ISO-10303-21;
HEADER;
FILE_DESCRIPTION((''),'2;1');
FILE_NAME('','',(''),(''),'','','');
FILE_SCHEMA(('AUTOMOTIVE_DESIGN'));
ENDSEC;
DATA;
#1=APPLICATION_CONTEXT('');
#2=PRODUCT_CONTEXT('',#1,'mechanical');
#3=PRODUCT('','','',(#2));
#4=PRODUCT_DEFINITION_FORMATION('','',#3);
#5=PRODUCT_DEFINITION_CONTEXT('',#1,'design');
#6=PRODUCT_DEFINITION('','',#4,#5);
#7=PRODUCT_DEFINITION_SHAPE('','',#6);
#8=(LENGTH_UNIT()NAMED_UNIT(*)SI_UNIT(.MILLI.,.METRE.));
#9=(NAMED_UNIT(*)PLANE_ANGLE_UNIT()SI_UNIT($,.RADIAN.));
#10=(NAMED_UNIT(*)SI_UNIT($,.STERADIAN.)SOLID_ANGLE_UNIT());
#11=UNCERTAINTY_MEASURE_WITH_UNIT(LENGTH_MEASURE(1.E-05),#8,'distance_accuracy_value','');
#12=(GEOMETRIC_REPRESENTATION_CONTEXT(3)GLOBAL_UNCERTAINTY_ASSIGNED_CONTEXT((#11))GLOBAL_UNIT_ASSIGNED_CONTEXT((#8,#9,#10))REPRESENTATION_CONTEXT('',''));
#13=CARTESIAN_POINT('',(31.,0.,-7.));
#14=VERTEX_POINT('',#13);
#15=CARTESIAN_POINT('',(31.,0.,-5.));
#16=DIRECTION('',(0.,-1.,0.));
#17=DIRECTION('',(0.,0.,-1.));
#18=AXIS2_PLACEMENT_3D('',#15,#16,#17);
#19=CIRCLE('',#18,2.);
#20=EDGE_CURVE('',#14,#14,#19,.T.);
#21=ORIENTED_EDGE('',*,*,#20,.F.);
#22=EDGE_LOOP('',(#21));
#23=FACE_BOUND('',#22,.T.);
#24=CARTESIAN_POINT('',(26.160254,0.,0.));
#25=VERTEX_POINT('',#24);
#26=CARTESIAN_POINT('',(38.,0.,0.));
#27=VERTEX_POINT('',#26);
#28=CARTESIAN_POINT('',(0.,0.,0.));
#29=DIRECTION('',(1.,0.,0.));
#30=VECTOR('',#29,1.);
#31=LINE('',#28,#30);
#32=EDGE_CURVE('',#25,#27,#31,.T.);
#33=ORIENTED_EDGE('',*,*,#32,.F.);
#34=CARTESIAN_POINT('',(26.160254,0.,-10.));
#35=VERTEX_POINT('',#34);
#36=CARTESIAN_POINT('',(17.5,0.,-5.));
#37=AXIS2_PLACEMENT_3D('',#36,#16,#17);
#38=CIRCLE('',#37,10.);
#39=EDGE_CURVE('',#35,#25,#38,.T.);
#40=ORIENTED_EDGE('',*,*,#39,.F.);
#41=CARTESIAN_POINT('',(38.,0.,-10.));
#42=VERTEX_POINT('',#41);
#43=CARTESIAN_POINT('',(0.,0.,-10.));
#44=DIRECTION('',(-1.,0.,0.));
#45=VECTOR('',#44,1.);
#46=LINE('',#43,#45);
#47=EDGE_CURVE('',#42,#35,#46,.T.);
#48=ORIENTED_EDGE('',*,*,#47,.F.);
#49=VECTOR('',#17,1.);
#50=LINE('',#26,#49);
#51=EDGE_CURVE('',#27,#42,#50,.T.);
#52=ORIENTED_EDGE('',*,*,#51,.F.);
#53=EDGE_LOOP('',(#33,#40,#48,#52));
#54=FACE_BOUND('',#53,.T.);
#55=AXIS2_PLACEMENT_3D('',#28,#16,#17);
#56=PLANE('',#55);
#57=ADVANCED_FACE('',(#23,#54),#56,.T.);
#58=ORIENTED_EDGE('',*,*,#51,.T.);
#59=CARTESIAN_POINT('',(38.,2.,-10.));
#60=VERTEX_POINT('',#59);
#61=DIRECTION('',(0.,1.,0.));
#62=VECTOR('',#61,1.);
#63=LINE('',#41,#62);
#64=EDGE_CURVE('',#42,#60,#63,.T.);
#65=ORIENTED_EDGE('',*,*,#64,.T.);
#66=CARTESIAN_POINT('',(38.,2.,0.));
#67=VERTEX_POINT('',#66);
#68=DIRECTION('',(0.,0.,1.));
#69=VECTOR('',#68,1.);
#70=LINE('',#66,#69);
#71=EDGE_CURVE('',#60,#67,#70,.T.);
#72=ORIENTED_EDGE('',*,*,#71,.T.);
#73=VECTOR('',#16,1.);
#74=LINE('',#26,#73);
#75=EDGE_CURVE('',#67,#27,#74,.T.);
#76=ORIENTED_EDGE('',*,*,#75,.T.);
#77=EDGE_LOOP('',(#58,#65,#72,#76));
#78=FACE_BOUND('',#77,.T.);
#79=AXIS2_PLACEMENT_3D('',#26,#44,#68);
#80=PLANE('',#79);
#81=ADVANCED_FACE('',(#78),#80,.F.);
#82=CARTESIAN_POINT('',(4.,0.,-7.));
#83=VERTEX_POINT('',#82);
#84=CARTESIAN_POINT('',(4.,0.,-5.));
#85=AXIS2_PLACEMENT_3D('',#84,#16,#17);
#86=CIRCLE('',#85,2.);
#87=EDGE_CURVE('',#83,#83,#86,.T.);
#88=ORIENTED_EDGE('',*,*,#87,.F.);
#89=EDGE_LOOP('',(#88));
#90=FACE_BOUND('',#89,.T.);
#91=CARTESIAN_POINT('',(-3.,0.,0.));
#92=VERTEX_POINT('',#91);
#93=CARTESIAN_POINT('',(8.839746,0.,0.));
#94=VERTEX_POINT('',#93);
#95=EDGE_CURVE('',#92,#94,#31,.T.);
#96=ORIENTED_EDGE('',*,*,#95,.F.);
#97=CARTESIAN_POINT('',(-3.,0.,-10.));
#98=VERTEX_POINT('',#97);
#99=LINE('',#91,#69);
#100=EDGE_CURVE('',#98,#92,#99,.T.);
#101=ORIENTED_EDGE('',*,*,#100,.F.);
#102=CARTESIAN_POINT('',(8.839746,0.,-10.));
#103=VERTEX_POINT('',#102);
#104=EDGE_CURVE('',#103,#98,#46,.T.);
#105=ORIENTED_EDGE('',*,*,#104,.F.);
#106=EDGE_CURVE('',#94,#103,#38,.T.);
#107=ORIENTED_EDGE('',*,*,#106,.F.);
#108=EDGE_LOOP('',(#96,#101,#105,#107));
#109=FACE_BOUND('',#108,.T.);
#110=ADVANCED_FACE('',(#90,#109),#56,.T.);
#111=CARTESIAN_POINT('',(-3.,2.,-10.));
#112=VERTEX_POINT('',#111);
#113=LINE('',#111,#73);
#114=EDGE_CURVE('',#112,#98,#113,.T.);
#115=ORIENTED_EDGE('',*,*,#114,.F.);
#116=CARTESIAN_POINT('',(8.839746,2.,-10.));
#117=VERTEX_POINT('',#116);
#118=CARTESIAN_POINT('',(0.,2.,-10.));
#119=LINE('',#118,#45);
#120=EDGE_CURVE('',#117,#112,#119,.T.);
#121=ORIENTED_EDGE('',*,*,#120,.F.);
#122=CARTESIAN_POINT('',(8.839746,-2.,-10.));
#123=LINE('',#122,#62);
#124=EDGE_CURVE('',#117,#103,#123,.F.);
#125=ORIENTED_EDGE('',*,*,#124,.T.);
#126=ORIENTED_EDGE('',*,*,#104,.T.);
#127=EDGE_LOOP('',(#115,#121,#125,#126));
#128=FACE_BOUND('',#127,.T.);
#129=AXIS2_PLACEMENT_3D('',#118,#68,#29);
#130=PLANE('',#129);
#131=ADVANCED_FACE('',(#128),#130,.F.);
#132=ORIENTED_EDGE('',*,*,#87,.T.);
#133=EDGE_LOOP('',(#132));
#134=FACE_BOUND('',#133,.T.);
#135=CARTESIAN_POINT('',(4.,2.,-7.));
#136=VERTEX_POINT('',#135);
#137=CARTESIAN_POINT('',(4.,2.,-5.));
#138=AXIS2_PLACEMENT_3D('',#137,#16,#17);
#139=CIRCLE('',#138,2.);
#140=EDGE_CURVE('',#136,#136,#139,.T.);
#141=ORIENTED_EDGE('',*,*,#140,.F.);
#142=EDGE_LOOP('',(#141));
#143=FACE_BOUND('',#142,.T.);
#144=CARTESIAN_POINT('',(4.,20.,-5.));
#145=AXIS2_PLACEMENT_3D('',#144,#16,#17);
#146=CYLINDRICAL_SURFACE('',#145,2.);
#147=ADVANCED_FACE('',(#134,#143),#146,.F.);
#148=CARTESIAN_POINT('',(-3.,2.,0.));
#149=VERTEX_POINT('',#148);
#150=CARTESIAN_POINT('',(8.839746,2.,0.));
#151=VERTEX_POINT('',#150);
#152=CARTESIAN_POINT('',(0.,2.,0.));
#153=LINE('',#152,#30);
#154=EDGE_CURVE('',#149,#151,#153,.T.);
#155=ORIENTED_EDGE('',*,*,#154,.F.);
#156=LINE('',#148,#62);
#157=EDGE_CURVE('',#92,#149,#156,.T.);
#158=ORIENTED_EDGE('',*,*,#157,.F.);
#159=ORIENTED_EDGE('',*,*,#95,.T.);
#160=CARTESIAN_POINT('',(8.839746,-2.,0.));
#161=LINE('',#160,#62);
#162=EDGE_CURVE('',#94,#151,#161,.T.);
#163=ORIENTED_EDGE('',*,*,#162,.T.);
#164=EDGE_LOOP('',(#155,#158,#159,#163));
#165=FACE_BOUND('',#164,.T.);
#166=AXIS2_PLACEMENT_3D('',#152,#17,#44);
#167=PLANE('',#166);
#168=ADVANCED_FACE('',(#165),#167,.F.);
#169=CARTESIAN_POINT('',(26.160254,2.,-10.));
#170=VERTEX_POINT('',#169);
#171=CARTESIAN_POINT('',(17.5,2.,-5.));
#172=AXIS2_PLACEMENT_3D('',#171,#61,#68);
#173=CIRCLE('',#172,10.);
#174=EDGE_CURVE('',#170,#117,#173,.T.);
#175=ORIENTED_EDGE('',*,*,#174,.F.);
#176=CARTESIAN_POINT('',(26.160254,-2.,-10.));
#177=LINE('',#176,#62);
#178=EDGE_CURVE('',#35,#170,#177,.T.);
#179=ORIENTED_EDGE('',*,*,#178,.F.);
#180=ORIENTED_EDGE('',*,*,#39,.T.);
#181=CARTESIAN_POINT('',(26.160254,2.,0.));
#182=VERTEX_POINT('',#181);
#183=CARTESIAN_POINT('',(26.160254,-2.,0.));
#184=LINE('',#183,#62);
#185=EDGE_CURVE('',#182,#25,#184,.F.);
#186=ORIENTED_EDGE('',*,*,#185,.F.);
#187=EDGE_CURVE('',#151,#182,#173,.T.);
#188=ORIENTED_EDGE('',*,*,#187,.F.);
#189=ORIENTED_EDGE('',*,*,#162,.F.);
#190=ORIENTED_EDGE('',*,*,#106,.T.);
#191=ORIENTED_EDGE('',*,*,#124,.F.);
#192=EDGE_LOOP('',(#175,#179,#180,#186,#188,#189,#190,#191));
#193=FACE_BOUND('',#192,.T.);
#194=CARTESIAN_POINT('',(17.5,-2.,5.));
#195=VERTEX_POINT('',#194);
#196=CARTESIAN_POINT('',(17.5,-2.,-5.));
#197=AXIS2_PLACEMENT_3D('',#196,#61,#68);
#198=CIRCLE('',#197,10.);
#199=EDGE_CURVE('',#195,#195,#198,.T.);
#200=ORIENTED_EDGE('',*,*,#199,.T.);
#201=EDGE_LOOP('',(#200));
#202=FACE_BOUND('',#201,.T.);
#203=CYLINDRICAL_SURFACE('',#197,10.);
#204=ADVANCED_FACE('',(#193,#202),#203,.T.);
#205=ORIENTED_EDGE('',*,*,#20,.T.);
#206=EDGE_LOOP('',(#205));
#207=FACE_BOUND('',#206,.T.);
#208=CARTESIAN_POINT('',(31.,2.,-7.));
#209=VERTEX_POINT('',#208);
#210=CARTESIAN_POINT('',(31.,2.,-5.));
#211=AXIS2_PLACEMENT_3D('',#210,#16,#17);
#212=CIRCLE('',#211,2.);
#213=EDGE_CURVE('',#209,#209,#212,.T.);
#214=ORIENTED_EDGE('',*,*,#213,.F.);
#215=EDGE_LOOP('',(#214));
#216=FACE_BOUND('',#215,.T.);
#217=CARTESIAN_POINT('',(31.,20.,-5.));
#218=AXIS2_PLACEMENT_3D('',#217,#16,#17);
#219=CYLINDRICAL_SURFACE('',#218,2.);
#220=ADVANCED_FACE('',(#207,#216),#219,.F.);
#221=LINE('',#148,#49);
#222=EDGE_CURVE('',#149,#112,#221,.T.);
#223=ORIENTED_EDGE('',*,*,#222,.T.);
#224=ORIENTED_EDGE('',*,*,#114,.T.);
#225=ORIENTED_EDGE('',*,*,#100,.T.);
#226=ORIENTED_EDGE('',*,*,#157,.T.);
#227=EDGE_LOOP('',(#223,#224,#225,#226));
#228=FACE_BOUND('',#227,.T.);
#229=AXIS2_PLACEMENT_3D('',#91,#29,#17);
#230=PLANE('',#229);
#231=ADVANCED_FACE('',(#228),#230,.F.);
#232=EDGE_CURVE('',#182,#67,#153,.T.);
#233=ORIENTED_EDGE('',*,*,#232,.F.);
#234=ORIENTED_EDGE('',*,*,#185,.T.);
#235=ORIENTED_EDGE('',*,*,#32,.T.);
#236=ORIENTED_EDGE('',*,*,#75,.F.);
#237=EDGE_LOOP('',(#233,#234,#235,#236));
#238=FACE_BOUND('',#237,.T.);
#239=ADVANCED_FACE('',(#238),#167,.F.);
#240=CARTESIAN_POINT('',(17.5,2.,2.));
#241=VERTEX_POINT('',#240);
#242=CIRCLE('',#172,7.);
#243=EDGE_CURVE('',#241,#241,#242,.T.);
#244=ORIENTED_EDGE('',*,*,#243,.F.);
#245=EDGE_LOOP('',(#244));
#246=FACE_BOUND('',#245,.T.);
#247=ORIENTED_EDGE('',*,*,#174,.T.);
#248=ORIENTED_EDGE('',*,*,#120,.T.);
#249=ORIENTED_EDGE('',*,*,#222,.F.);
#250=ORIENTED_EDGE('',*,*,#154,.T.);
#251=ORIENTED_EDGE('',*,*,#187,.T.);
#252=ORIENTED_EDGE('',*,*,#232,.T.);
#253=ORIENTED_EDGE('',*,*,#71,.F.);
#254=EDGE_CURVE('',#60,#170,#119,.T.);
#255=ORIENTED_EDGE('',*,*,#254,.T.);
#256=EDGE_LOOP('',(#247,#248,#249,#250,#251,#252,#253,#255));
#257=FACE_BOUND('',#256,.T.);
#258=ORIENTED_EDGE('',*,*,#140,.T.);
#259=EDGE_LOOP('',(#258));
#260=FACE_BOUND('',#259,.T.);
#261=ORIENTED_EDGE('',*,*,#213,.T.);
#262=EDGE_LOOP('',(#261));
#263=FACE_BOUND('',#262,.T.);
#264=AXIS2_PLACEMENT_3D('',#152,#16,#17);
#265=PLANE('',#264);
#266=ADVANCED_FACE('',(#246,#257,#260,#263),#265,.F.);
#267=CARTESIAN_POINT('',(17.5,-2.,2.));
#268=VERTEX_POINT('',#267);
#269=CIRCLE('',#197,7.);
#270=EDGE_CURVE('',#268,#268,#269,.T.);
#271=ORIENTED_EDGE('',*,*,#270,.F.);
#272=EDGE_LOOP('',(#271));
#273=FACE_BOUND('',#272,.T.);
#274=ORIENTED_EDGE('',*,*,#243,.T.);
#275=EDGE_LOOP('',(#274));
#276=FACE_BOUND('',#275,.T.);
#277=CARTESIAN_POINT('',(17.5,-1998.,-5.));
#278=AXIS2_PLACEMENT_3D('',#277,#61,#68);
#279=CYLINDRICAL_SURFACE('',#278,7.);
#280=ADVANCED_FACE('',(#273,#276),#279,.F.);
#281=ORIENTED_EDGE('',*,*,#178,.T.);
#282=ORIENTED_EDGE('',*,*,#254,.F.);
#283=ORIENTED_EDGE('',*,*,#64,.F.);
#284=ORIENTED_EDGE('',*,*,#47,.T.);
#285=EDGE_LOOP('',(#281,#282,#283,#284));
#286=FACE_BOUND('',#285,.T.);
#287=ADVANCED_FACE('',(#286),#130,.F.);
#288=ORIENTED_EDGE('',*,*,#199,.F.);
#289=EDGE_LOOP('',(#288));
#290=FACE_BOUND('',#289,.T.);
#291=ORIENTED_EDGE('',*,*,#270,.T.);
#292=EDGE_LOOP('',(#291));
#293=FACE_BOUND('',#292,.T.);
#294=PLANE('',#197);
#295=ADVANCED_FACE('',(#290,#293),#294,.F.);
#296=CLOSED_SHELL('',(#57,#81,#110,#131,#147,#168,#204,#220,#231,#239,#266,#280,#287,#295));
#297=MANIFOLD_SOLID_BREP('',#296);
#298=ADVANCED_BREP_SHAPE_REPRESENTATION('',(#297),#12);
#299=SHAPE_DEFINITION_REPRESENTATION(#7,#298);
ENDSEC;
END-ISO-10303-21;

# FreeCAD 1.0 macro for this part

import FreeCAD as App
import Part
import Sketcher
from FreeCAD import Vector
Q = App.Units.Quantity

doc = App.newDocument("Part")
body = doc.addObject("PartDesign::Body", "Body")

sketch1 = body.newObject("Sketcher::SketchObject", "Sketch")
sketch1.AttachmentSupport = (doc.getObject("XZ_Plane"), [""])
sketch1.MapMode = "FlatFace"
sketch1.addGeometry([
    Part.LineSegment(Vector(0, -10, 0), Vector(0, 0, 0)),
    Part.LineSegment(Vector(0, 0, 0), Vector(35, 0, 0)),
    Part.LineSegment(Vector(35, 0, 0), Vector(35, -10, 0)),
    Part.LineSegment(Vector(35, -10, 0), Vector(0, -10, 0)),
], False)
sketch1.addConstraint([
    Sketcher.Constraint("Coincident", 0, 2, 1, 1),
    Sketcher.Constraint("Coincident", 1, 2, 2, 1),
    Sketcher.Constraint("Coincident", 2, 2, 3, 1),
    Sketcher.Constraint("Coincident", 3, 2, 0, 1),
    Sketcher.Constraint("Vertical", 0),
    Sketcher.Constraint("Horizontal", 1),
    Sketcher.Constraint("Vertical", 2),
    Sketcher.Constraint("Horizontal", 3),
    Sketcher.Constraint("Coincident", 0, 2, -1, 1),
    Sketcher.Constraint("DistanceX", 1, 1, 1, 2, Q("35 mm")),
    Sketcher.Constraint("DistanceY", 0, 1, 0, 2, Q("10 mm")),
])
pad1 = body.newObject("PartDesign::Pad", "Pad")
pad1.Profile = sketch1
pad1.Length = 2
pad1.Reversed = True

sketch2 = body.newObject("Sketcher::SketchObject", "Sketch001")
sketch2.AttachmentSupport = (doc.getObject("XZ_Plane"), [""])
sketch2.MapMode = "FlatFace"
sketch2.AttachmentOffset = App.Placement(Vector(0, 0, -2), App.Rotation())
sketch2.addGeometry(Part.Circle(Vector(17.5, -5, 0), Vector(0, 0, 1), 10), False)
sketch2.addConstraint([
    Sketcher.Constraint("Diameter", 0, Q("20 mm")),
    Sketcher.Constraint("DistanceY", 0, 3, -1, 1, Q("5 mm")),
    Sketcher.Constraint("DistanceX", -1, 1, 0, 3, Q("17.5 mm")),
])
pad2 = body.newObject("PartDesign::Pad", "Pad001")
pad2.Profile = sketch2
pad2.Length = 4

sketch3 = body.newObject("Sketcher::SketchObject", "Sketch002")
sketch3.AttachmentSupport = (doc.getObject("XZ_Plane"), [""])
sketch3.MapMode = "FlatFace"
sketch3.AttachmentOffset = App.Placement(Vector(0, 0, -2), App.Rotation())
sketch3.addGeometry(Part.Circle(Vector(17.5, -5, 0), Vector(0, 0, 1), 7), False)
sketch3.addConstraint([
    Sketcher.Constraint("Diameter", 0, Q("14 mm")),
    Sketcher.Constraint("DistanceY", 0, 3, -1, 1, Q("5 mm")),
    Sketcher.Constraint("DistanceX", -1, 1, 0, 3, Q("17.5 mm")),
])
pocket1 = body.newObject("PartDesign::Pocket", "Pocket")
pocket1.Profile = sketch3
pocket1.Length = 2000
pocket1.Reversed = True

sketch4 = body.newObject("Sketcher::SketchObject", "Sketch003")
sketch4.AttachmentSupport = (doc.getObject("XZ_Plane"), [""])
sketch4.MapMode = "FlatFace"
sketch4.addGeometry([
    Part.Circle(Vector(4, -5, 0), Vector(0, 0, 1), 2),
    Part.Circle(Vector(31, -5, 0), Vector(0, 0, 1), 2),
], False)
sketch4.addConstraint([
    Sketcher.Constraint("Equal", 0, 1),
    Sketcher.Constraint("Horizontal", 0, 3, 1, 3),
    Sketcher.Constraint("Diameter", 0, Q("4 mm")),
    Sketcher.Constraint("DistanceX", -1, 1, 0, 3, Q("4 mm")),
    Sketcher.Constraint("DistanceY", 0, 3, -1, 1, Q("5 mm")),
    Sketcher.Constraint("DistanceX", -1, 1, 1, 3, Q("31 mm")),
])
pocket2 = body.newObject("PartDesign::Pocket", "Pocket001")
pocket2.Profile = sketch4
pocket2.Length = 20

sketch5 = body.newObject("Sketcher::SketchObject", "Sketch004")
sketch5.AttachmentSupport = (doc.getObject("YZ_Plane"), [""])
sketch5.MapMode = "FlatFace"
sketch5.addGeometry([
    Part.LineSegment(Vector(2, -10, 0), Vector(0, -10, 0)),
    Part.LineSegment(Vector(0, -10, 0), Vector(0, 0, 0)),
    Part.LineSegment(Vector(0, 0, 0), Vector(2, 0, 0)),
    Part.LineSegment(Vector(2, 0, 0), Vector(2, -10, 0)),
], False)
sketch5.addConstraint([
    Sketcher.Constraint("Coincident", 0, 2, 1, 1),
    Sketcher.Constraint("Coincident", 1, 2, 2, 1),
    Sketcher.Constraint("Coincident", 2, 2, 3, 1),
    Sketcher.Constraint("Coincident", 3, 2, 0, 1),
    Sketcher.Constraint("Horizontal", 0),
    Sketcher.Constraint("Vertical", 1),
    Sketcher.Constraint("Horizontal", 2),
    Sketcher.Constraint("Vertical", 3),
    Sketcher.Constraint("Coincident", 1, 2, -1, 1),
    Sketcher.Constraint("DistanceX", 0, 2, 0, 1, Q("2 mm")),
    Sketcher.Constraint("DistanceY", 1, 1, 1, 2, Q("10 mm")),
])
pad3 = body.newObject("PartDesign::Pad", "Pad002")
pad3.Profile = sketch5
pad3.Length = 3
pad3.Reversed = True

sketch6 = body.newObject("Sketcher::SketchObject", "Sketch005")
sketch6.AttachmentSupport = (doc.getObject("YZ_Plane"), [""])
sketch6.MapMode = "FlatFace"
sketch6.AttachmentOffset = App.Placement(Vector(0, 0, 35), App.Rotation())
sketch6.addGeometry([
    Part.LineSegment(Vector(2, 0, 0), Vector(0, 0, 0)),
    Part.LineSegment(Vector(0, 0, 0), Vector(0, -10, 0)),
    Part.LineSegment(Vector(0, -10, 0), Vector(2, -10, 0)),
    Part.LineSegment(Vector(2, -10, 0), Vector(2, 0, 0)),
], False)
sketch6.addConstraint([
    Sketcher.Constraint("Coincident", 0, 2, 1, 1),
    Sketcher.Constraint("Coincident", 1, 2, 2, 1),
    Sketcher.Constraint("Coincident", 2, 2, 3, 1),
    Sketcher.Constraint("Coincident", 3, 2, 0, 1),
    Sketcher.Constraint("Horizontal", 0),
    Sketcher.Constraint("Vertical", 1),
    Sketcher.Constraint("Horizontal", 2),
    Sketcher.Constraint("Vertical", 3),
    Sketcher.Constraint("Coincident", 0, 2, -1, 1),
    Sketcher.Constraint("DistanceX", 0, 2, 0, 1, Q("2 mm")),
    Sketcher.Constraint("DistanceY", 1, 2, 1, 1, Q("10 mm")),
])
pad4 = body.newObject("PartDesign::Pad", "Pad003")
pad4.Profile = sketch6
pad4.Length = 3

doc.recompute()
